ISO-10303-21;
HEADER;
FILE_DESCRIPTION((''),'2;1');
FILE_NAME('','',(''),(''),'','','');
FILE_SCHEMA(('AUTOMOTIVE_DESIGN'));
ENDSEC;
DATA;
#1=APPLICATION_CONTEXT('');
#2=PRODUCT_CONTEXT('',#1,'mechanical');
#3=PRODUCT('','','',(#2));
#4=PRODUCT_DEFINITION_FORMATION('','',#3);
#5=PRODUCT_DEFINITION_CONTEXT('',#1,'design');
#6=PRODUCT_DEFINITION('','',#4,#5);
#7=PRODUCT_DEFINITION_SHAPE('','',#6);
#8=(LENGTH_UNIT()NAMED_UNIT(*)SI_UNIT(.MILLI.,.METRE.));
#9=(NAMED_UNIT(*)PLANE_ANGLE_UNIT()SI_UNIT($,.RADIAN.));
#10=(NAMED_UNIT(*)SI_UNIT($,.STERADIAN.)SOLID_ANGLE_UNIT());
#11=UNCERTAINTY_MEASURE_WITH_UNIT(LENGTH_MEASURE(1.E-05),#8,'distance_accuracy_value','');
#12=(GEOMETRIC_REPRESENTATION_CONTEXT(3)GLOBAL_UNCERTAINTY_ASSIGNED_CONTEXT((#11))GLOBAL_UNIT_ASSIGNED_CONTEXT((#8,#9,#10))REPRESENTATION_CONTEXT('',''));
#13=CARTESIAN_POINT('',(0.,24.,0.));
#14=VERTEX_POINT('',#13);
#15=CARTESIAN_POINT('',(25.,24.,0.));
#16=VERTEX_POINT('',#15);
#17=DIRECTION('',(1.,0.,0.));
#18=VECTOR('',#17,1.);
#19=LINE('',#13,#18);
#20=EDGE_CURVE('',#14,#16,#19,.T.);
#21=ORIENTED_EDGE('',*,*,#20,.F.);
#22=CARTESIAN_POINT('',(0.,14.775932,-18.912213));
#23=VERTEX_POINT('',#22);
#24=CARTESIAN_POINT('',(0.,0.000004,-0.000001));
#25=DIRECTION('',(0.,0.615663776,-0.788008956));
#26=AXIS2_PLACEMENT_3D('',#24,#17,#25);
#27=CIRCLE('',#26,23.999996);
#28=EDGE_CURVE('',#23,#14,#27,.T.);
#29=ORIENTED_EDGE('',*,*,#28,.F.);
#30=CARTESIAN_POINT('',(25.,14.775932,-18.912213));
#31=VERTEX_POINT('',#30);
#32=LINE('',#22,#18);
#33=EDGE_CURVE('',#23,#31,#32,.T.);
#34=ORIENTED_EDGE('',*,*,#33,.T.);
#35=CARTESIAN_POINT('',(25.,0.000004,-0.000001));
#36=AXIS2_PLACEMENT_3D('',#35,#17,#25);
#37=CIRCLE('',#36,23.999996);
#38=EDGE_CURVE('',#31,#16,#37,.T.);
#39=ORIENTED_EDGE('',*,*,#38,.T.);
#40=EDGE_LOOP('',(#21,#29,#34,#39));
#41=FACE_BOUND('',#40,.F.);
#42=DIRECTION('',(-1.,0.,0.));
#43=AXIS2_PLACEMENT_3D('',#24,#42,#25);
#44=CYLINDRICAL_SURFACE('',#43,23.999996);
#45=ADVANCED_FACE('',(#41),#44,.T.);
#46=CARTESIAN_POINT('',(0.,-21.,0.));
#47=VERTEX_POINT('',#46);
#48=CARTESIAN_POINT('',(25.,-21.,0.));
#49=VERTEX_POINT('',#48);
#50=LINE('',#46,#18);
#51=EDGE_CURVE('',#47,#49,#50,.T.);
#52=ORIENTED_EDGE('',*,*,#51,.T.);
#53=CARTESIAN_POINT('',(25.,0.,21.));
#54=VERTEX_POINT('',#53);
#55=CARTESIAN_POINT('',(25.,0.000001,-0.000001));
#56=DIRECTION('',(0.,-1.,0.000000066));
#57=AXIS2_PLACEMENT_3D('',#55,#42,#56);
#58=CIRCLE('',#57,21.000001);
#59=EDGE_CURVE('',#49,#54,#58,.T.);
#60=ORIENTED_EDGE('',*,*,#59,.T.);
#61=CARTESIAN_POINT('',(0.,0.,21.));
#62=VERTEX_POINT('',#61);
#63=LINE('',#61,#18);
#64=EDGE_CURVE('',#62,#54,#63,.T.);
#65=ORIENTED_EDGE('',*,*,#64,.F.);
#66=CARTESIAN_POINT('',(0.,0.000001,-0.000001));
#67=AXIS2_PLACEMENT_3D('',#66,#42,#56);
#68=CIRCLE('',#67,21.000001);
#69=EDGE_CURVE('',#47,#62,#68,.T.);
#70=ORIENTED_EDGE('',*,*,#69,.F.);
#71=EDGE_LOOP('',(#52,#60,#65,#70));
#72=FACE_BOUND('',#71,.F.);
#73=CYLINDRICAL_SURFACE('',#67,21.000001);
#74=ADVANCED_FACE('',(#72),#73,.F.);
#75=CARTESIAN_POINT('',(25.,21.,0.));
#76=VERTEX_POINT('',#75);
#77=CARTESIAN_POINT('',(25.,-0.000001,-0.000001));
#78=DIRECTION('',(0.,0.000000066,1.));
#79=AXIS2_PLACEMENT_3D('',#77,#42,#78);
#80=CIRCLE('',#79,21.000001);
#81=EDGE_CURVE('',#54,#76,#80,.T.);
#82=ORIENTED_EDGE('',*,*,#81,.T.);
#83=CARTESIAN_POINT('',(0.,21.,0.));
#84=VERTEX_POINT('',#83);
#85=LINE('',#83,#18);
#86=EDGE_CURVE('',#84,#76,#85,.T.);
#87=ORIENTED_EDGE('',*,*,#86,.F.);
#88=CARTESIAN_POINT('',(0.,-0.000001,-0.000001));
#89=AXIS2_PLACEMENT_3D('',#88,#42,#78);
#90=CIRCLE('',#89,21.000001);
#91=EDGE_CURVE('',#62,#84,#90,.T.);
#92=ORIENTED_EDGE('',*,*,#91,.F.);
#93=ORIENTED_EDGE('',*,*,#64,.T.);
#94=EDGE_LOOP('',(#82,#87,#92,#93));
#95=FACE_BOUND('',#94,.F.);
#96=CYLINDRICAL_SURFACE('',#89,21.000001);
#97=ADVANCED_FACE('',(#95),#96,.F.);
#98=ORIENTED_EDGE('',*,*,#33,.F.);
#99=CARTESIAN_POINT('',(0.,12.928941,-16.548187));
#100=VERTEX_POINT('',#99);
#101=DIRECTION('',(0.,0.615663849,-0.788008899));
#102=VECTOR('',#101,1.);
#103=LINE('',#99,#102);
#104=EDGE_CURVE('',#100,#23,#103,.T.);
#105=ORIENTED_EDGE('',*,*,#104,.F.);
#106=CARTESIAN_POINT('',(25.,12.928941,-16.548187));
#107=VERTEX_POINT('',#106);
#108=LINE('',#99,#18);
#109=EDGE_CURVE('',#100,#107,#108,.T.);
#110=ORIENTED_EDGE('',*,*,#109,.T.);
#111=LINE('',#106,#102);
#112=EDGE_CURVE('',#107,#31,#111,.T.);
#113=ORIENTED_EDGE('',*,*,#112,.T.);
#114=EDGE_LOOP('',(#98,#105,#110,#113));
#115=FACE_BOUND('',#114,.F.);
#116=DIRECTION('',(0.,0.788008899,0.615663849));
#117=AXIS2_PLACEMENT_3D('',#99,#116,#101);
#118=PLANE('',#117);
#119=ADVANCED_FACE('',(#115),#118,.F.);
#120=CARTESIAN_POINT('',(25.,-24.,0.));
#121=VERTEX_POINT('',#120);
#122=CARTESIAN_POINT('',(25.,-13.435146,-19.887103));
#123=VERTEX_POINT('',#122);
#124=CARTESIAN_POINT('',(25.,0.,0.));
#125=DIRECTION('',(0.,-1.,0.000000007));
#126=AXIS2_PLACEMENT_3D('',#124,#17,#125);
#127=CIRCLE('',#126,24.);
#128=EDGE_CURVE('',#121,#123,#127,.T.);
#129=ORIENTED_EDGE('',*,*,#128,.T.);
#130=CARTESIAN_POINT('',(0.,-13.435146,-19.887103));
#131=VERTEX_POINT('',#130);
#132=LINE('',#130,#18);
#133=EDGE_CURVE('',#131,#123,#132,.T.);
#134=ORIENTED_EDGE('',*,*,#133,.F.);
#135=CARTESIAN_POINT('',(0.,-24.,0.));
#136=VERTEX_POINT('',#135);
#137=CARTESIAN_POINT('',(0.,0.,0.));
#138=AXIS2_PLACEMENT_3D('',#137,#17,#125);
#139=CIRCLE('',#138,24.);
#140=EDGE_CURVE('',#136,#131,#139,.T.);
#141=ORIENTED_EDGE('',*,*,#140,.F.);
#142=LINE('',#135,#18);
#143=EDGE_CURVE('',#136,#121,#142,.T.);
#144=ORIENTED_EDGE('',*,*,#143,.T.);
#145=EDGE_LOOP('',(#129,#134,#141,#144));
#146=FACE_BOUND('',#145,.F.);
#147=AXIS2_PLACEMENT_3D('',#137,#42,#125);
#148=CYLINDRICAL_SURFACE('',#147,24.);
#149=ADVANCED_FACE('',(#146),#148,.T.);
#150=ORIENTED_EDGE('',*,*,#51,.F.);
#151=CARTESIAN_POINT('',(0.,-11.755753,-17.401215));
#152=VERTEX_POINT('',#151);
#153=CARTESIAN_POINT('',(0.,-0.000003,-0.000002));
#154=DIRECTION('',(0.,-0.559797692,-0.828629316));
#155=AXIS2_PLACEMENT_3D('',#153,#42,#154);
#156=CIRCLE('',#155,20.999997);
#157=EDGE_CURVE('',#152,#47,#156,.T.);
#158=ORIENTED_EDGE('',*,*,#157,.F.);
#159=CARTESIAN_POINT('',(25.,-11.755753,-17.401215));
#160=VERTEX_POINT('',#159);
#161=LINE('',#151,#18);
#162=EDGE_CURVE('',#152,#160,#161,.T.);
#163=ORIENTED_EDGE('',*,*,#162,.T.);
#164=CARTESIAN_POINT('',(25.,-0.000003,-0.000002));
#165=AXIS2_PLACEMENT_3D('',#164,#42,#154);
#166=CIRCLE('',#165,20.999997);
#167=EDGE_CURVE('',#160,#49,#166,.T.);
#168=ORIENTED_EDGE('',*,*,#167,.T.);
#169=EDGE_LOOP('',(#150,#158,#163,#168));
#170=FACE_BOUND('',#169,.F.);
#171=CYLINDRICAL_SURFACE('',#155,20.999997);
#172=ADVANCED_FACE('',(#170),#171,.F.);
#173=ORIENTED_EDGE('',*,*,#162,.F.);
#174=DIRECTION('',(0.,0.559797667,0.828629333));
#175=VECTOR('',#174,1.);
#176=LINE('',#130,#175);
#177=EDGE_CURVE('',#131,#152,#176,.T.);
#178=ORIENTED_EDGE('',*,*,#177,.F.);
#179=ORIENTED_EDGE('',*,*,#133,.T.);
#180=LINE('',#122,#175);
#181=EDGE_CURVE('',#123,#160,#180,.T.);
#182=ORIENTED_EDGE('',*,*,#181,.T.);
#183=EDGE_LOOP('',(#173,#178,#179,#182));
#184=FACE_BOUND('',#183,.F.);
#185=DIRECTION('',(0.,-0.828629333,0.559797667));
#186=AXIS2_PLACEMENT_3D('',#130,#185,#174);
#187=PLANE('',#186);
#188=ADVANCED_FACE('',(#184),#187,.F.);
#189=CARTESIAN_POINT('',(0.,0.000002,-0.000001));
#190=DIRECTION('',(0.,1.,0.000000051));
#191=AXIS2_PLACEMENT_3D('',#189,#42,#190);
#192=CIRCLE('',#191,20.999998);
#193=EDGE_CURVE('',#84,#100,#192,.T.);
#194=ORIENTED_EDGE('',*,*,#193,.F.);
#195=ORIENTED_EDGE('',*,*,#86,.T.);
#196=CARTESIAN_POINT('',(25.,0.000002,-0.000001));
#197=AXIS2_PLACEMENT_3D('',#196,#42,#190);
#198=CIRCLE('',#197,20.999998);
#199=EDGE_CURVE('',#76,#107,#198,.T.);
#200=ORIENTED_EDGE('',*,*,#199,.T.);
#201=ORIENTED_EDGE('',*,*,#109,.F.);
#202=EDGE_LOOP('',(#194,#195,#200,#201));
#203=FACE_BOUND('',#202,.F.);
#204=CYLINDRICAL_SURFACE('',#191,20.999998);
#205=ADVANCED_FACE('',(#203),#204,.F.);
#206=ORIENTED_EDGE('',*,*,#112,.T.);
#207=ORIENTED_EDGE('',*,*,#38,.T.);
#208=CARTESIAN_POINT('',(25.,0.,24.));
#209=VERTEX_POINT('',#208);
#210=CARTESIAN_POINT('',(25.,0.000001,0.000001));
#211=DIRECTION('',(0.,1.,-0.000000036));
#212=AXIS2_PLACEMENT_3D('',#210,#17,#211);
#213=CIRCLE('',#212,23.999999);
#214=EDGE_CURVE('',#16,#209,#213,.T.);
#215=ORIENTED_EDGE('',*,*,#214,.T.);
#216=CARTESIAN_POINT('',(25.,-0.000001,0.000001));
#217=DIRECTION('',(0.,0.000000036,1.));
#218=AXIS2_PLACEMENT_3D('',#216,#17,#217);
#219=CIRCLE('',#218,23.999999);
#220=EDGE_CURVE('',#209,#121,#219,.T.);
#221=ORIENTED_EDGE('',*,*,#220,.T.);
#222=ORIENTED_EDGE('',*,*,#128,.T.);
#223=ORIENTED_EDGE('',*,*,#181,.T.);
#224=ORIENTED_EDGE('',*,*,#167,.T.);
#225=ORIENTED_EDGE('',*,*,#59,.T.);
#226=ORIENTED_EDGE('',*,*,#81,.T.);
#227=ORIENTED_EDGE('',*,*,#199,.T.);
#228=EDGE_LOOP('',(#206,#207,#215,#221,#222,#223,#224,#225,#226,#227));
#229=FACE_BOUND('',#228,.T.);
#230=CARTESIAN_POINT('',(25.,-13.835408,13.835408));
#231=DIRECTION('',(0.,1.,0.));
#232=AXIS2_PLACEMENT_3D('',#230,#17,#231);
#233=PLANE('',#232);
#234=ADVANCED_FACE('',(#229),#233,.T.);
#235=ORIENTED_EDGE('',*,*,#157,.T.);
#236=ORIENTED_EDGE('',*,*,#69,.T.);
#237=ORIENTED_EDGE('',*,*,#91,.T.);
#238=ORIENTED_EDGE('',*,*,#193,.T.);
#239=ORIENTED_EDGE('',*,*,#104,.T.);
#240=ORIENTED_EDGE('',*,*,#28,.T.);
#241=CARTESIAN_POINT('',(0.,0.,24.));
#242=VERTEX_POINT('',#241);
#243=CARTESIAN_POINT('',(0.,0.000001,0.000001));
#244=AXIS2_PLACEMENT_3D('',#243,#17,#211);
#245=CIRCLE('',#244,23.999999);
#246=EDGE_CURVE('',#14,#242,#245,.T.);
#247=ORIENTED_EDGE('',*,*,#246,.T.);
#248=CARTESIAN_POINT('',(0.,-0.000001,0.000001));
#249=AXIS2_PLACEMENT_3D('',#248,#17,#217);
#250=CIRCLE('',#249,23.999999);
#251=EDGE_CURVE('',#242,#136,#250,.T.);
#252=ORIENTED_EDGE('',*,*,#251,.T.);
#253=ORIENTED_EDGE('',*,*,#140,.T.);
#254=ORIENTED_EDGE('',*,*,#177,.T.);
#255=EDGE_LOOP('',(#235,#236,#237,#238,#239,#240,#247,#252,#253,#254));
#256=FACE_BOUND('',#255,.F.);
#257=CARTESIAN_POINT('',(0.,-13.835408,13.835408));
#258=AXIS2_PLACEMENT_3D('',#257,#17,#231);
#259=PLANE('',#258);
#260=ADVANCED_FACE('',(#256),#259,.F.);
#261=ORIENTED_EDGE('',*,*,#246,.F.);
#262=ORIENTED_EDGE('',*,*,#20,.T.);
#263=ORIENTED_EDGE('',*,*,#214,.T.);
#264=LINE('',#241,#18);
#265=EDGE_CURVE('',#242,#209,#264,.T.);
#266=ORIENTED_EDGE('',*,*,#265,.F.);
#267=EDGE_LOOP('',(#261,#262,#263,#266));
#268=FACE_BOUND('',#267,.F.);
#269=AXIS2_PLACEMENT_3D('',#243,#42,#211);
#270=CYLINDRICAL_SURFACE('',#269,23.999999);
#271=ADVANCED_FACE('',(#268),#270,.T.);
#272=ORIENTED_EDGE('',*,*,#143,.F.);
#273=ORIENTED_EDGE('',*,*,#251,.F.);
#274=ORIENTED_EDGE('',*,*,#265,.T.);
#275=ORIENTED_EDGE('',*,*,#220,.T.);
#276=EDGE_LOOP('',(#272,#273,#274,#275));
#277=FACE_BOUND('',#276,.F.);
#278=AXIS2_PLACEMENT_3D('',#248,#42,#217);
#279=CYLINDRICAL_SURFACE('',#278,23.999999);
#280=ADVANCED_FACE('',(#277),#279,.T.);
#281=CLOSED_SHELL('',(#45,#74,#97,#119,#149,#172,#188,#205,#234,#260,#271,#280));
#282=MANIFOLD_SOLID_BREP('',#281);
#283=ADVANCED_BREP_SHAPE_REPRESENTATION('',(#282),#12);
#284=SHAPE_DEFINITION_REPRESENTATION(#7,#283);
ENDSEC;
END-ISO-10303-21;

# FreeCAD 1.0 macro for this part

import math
import FreeCAD as App
import Part
import Sketcher

doc = App.newDocument("Part")
body = doc.addObject("PartDesign::Body", "Body")

sketch1 = body.newObject("Sketcher::SketchObject", "Sketch")
sketch1.AttachmentSupport = (doc.getObject("YZ_Plane"), [""])
sketch1.MapMode = "FlatFace"
sketch1.addGeometry(Part.ArcOfCircle(Part.Circle(App.Vector(0, 0, 0), App.Vector(0, 0, 1), 24), math.radians(90), math.radians(180)), False)
sketch1.addGeometry(Part.ArcOfCircle(Part.Circle(App.Vector(0, 0, 0), App.Vector(0, 0, 1), 24), math.radians(180), math.radians(236)), False)
sketch1.addGeometry(Part.LineSegment(App.Vector(-13.4, -19.9, 0), App.Vector(-11.8, -17.4, 0)), False)
sketch1.addGeometry(Part.ArcOfCircle(Part.Circle(App.Vector(0, 0, 0), App.Vector(0, 0, 1), 21), math.radians(180), math.radians(236)), False)
sketch1.addGeometry(Part.ArcOfCircle(Part.Circle(App.Vector(0, 0, 0), App.Vector(0, 0, 1), 21), math.radians(90), math.radians(180)), False)
sketch1.addGeometry(Part.ArcOfCircle(Part.Circle(App.Vector(0, 0, 0), App.Vector(0, 0, 1), 21), math.radians(0), math.radians(90)), False)
sketch1.addGeometry(Part.ArcOfCircle(Part.Circle(App.Vector(0, 0, 0), App.Vector(0, 0, 1), 21), math.radians(-52), math.radians(0)), False)
sketch1.addGeometry(Part.LineSegment(App.Vector(12.9, -16.5, 0), App.Vector(14.8, -18.9, 0)), False)
sketch1.addGeometry(Part.ArcOfCircle(Part.Circle(App.Vector(0, 0, 0), App.Vector(0, 0, 1), 24), math.radians(-52), math.radians(0)), False)
sketch1.addGeometry(Part.ArcOfCircle(Part.Circle(App.Vector(0, 0, 0), App.Vector(0, 0, 1), 24), math.radians(0), math.radians(90)), False)
sketch1.addConstraint(Sketcher.Constraint("Tangent", 0, 2, 1, 1))
sketch1.addConstraint(Sketcher.Constraint("Coincident", 1, 2, 2, 1))
sketch1.addConstraint(Sketcher.Constraint("Coincident", 2, 2, 3, 2))
sketch1.addConstraint(Sketcher.Constraint("Tangent", 3, 1, 4, 2))
sketch1.addConstraint(Sketcher.Constraint("Tangent", 4, 1, 5, 2))
sketch1.addConstraint(Sketcher.Constraint("Tangent", 5, 1, 6, 2))
sketch1.addConstraint(Sketcher.Constraint("Coincident", 6, 1, 7, 1))
sketch1.addConstraint(Sketcher.Constraint("Coincident", 7, 2, 8, 1))
sketch1.addConstraint(Sketcher.Constraint("Tangent", 8, 2, 9, 1))
sketch1.addConstraint(Sketcher.Constraint("Tangent", 9, 2, 0, 1))
sketch1.addConstraint(Sketcher.Constraint("Coincident", 0, 3, -1, 1))
sketch1.addConstraint(Sketcher.Constraint("Coincident", 3, 3, -1, 1))
sketch1.addConstraint(Sketcher.Constraint("Coincident", 5, 3, -1, 1))
sketch1.addConstraint(Sketcher.Constraint("Coincident", 8, 3, -1, 1))
sketch1.addConstraint(Sketcher.Constraint("Equal", 0, 1))
sketch1.addConstraint(Sketcher.Constraint("Equal", 3, 6))
sketch1.addConstraint(Sketcher.Constraint("PointOnObject", 0, 2, -1))
sketch1.addConstraint(Sketcher.Constraint("PointOnObject", 3, 1, -1))
sketch1.addConstraint(Sketcher.Constraint("PointOnObject", 4, 1, -2))
sketch1.addConstraint(Sketcher.Constraint("PointOnObject", 5, 1, -1))
sketch1.addConstraint(Sketcher.Constraint("PointOnObject", 8, 2, -1))
sketch1.addConstraint(Sketcher.Constraint("PointOnObject", 9, 2, -2))
sketch1.addConstraint(Sketcher.Constraint("Radius", 0, 23.999999))
sketch1.addConstraint(Sketcher.Constraint("Radius", 4, 21.000001))
sketch1.addConstraint(Sketcher.Constraint("DistanceY", 1, 2, 3, 3, 19.887101))
sketch1.addConstraint(Sketcher.Constraint("DistanceX", -1, 1, 6, 1, 12.928941))
sketch1.addConstraint(Sketcher.Constraint("DistanceX", -1, 1, 7, 2, 14.775932))
sketch1.addConstraint(Sketcher.Constraint("DistanceY", 1, 2, 2, 2, 2.485888))
pad1 = body.newObject("PartDesign::Pad", "Pad")
pad1.Profile = sketch1
pad1.Length = 25

doc.recompute()
